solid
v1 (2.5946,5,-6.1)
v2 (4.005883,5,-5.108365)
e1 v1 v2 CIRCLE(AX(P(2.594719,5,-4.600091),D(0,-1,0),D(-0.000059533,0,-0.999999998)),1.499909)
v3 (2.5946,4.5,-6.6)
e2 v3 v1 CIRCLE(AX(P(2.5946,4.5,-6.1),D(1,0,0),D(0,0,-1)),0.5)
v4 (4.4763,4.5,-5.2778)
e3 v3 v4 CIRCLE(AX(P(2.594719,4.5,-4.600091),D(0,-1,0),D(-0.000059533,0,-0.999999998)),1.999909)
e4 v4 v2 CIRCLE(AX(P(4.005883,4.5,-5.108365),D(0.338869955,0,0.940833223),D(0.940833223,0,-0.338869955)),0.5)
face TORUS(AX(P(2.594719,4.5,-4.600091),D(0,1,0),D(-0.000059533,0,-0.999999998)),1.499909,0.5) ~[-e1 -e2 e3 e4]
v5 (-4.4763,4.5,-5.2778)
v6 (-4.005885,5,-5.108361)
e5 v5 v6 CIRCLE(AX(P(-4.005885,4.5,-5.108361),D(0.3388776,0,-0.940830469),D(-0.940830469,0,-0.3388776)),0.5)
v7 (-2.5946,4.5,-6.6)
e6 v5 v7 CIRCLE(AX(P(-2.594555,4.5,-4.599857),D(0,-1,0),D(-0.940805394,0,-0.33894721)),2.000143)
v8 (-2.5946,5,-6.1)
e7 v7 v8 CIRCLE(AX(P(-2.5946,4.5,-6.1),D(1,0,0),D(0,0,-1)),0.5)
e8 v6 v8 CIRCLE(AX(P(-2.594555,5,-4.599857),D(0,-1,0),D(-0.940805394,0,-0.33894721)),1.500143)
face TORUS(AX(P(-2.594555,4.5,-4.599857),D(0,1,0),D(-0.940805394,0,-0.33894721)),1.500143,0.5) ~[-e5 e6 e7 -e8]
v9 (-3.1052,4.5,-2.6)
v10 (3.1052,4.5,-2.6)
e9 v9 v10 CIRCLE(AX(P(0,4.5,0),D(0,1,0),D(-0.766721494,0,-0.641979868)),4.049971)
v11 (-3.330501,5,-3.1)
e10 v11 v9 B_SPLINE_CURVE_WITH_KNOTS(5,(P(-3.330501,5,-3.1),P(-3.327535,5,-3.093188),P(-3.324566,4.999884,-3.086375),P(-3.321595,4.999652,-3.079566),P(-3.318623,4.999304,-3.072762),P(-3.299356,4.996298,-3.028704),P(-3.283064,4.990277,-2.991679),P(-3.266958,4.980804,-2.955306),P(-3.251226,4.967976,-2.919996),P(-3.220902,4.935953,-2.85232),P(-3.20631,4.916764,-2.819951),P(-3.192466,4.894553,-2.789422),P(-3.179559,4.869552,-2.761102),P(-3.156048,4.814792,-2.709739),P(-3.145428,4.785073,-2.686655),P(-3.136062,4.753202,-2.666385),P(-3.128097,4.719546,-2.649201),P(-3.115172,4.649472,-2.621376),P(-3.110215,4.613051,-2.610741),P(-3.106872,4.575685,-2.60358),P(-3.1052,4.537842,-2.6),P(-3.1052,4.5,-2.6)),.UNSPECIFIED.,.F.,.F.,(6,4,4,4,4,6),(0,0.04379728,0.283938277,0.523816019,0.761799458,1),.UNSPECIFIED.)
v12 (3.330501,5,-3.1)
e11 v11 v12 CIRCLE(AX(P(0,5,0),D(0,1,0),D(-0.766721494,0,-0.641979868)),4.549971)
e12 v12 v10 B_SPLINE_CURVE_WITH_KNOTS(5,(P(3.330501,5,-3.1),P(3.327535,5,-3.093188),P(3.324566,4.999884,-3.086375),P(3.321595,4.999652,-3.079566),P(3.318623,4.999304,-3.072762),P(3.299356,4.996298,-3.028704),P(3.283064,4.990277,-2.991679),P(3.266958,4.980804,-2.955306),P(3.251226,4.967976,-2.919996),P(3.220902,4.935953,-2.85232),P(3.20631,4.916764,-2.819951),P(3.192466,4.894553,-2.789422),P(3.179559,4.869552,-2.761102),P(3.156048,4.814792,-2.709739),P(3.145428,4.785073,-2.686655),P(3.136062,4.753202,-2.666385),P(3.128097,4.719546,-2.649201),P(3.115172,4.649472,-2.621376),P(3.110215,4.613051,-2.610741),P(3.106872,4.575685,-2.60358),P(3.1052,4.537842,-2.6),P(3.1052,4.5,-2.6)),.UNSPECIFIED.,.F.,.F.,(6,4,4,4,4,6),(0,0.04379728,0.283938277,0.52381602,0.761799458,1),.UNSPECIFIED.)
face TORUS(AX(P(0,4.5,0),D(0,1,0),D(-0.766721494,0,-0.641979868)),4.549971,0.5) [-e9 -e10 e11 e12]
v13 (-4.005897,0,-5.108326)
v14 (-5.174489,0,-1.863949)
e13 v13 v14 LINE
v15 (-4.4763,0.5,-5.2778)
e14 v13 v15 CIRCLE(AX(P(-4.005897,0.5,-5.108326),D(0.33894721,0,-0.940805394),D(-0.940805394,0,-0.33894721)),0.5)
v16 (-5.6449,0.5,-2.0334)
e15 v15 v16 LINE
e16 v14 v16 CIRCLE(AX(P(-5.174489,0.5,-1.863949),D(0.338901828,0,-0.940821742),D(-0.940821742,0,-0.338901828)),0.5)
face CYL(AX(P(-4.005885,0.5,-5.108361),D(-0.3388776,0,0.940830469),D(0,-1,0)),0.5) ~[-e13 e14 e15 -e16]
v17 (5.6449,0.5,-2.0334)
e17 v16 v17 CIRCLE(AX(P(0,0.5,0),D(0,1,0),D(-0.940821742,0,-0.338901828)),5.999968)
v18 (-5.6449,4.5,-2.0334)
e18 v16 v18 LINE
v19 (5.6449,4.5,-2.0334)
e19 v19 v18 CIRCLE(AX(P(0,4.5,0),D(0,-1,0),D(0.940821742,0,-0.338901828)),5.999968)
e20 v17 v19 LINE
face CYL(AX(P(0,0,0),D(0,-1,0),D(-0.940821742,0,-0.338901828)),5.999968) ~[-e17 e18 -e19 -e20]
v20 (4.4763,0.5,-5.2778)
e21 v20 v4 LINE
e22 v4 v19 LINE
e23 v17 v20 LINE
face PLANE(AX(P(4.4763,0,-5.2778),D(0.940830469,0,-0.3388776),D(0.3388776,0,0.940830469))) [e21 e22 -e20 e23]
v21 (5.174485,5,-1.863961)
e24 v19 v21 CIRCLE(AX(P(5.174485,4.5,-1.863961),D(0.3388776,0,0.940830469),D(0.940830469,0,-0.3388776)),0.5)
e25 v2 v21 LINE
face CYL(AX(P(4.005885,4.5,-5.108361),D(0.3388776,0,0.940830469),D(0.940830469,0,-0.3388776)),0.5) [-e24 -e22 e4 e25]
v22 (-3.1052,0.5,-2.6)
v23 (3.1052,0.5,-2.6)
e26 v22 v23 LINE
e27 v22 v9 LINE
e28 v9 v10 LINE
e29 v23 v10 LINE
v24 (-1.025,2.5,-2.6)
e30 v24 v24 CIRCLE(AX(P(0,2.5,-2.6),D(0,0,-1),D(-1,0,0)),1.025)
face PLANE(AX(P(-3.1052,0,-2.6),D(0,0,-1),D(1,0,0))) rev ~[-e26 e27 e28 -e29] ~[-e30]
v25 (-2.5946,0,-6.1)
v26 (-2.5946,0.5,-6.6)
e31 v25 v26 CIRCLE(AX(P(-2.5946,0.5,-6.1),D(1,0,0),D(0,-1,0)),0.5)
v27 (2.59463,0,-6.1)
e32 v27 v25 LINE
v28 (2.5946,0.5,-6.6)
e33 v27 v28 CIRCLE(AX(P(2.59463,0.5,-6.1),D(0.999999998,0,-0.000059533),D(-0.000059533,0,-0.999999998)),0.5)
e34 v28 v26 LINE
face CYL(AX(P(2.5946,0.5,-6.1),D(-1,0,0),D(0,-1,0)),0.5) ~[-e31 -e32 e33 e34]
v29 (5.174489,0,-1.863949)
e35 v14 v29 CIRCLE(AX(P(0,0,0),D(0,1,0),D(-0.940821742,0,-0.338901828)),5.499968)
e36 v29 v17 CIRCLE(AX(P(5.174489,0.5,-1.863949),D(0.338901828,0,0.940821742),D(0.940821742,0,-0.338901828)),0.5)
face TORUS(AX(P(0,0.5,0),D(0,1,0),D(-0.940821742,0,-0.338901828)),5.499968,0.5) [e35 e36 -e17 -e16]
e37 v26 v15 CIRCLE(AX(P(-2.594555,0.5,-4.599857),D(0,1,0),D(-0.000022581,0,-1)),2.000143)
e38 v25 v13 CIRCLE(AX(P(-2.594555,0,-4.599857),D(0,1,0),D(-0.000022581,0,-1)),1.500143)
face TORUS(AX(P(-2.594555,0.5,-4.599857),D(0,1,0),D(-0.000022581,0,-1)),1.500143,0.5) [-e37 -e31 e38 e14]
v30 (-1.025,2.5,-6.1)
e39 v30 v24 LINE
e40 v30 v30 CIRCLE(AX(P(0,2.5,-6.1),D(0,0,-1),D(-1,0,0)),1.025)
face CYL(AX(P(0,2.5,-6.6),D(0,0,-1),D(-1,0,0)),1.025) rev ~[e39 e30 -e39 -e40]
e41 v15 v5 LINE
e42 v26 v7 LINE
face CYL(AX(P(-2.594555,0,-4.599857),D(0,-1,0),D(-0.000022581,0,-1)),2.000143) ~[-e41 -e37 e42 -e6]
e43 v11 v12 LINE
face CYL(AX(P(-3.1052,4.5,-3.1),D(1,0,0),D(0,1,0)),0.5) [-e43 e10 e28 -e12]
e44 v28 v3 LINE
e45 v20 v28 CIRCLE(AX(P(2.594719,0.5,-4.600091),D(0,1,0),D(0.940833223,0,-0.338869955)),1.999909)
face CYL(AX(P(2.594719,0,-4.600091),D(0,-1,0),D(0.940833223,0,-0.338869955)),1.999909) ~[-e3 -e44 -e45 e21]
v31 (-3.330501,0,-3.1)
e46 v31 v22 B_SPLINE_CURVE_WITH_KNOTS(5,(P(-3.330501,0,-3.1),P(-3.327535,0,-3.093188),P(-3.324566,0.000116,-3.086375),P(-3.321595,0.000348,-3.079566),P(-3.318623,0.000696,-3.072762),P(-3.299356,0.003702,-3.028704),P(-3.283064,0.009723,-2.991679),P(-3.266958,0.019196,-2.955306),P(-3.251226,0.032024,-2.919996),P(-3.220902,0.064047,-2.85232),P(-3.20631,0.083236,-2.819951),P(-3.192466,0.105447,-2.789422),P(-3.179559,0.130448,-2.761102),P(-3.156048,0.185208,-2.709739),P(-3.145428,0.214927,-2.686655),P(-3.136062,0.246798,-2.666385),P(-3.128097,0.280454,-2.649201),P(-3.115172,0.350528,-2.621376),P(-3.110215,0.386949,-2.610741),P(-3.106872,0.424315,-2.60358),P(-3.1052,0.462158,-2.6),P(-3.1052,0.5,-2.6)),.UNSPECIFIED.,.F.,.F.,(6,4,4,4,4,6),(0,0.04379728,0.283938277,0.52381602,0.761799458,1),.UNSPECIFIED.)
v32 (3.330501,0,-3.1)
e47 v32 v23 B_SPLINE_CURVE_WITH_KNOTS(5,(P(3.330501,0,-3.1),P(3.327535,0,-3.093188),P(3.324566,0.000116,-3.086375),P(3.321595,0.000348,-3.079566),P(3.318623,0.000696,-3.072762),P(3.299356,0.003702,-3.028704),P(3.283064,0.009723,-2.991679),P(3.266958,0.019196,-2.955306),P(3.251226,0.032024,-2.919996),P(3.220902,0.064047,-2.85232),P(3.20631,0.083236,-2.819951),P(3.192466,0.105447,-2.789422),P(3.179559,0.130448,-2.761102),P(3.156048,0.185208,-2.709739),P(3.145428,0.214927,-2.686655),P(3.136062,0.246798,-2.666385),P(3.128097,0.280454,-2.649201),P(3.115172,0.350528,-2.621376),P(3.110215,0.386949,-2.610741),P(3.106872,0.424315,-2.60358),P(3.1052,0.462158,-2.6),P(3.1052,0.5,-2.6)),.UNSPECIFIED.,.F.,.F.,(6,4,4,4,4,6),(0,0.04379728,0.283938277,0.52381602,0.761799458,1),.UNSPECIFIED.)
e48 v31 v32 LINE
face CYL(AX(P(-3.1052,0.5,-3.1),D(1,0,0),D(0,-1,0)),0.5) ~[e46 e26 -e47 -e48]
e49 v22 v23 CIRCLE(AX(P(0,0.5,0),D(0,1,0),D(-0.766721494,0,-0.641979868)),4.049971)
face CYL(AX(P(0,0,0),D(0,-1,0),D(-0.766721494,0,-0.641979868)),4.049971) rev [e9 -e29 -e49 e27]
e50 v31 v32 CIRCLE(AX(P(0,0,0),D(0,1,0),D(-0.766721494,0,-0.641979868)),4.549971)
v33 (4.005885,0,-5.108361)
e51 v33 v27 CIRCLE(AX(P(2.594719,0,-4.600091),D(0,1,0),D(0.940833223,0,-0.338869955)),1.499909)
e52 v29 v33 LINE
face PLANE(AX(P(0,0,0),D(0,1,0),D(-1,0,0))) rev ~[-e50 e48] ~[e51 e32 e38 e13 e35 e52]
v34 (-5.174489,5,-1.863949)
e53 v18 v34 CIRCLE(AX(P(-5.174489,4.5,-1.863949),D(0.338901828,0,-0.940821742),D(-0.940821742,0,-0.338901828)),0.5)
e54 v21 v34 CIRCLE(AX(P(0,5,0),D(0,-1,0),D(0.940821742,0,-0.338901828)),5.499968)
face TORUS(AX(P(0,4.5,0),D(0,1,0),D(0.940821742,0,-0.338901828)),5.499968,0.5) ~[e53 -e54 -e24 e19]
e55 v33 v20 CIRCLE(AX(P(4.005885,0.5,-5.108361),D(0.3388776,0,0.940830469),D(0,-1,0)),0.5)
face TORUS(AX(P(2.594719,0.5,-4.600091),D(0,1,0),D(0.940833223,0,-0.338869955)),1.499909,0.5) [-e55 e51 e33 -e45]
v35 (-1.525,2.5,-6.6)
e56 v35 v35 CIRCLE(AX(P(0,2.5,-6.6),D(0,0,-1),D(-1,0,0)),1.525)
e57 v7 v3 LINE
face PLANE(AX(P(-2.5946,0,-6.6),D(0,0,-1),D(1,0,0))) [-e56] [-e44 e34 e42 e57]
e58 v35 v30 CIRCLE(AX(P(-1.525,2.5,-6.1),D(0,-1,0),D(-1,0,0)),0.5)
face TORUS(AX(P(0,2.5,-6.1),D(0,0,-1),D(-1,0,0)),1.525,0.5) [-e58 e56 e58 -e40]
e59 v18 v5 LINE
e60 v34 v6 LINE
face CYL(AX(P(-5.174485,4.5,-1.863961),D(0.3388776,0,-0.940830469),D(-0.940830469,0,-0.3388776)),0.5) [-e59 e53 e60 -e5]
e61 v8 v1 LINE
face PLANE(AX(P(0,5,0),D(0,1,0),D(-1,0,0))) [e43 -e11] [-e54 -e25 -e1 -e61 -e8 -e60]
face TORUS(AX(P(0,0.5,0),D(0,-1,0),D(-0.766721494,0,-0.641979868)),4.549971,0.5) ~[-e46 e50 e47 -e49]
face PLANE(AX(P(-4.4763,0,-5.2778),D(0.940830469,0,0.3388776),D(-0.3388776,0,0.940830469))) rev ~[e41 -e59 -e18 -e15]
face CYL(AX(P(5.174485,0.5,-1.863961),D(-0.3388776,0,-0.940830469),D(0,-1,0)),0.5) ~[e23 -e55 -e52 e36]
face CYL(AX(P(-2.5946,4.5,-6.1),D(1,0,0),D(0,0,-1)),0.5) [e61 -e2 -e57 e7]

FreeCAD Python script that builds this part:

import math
import FreeCAD as App
import Part
import Sketcher
from FreeCAD import Vector


def edges_at(feature, points):
    """Names of the edges that pass closest to the given points."""
    edges = feature.Shape.Edges
    near = lambda p: min(range(len(edges)), key=lambda i: edges[i].distToShape(Part.Vertex(*p))[0])
    return sorted({f"Edge{near(p) + 1}" for p in points})

doc = App.newDocument("Part")
params = doc.addObject("Spreadsheet::Sheet", "Params")
for row, (alias, value) in enumerate([
    ("sketch1_radius", "6 mm"),
    ("sketch1_radius2", "2 mm"),
    ("sketch1_radius3", "4.05 mm"),
    ("pad1_length", "5 mm"),
    ("sketch2_diameter", "2.05 mm"),
    ("pocket1_length", "5 mm"),
    ("fillet_radius", "0.5 mm"),
    ("fillet2_radius", "0.5 mm"),
], start=1):
    params.set(f"A{row}", alias)
    params.set(f"B{row}", "=" + value)
    params.setAlias(f"B{row}", alias)

body = doc.addObject("PartDesign::Body", "Body")

sketch1 = doc.addObject("Sketcher::SketchObject", "Sketch")
body.addObject(sketch1)
sketch1.AttachmentSupport = (doc.XZ_Plane, [""])
sketch1.MapMode = "FlatFace"
sketch1.addGeometry(Part.LineSegment(Vector(-4.4763, -5.2778, 0), Vector(-5.6449, -2.0334, 0)), False)
sketch1.addGeometry(Part.ArcOfCircle(Part.Circle(Vector(0, 0, 0), Vector(0, 0, 1), 5.999968), math.radians(-19.809982), math.radians(199.809982)), False)
sketch1.addGeometry(Part.LineSegment(Vector(5.6449, -2.0334, 0), Vector(4.4763, -5.2778, 0)), False)
sketch1.addGeometry(Part.ArcOfCircle(Part.Circle(Vector(2.5946, -4.6, 0), Vector(0, 0, 1), 2.000052), math.radians(-90), math.radians(-19.809334)), False)
sketch1.addGeometry(Part.LineSegment(Vector(2.5946, -6.6, 0), Vector(-2.5946, -6.6, 0)), False)
sketch1.addGeometry(Part.ArcOfCircle(Part.Circle(Vector(-2.5946, -4.6, 0), Vector(0, 0, 1), 2), math.radians(-160.190666), math.radians(-90)), False)
sketch1.addGeometry(Part.ArcOfCircle(Part.Circle(Vector(0, 0, 0), Vector(0, 0, 1), 4.049971), math.radians(-39.939612), math.radians(219.939612)), False)
sketch1.addGeometry(Part.LineSegment(Vector(-3.1052, -2.6, 0), Vector(3.1052, -2.6, 0)), False)
sketch1.addConstraint(Sketcher.Constraint("Tangent", 0, 2, 1, 2))
sketch1.addConstraint(Sketcher.Constraint("Tangent", 1, 1, 2, 1))
sketch1.addConstraint(Sketcher.Constraint("Tangent", 2, 2, 3, 2))
sketch1.addConstraint(Sketcher.Constraint("Tangent", 3, 1, 4, 1))
sketch1.addConstraint(Sketcher.Constraint("Tangent", 4, 2, 5, 2))
sketch1.addConstraint(Sketcher.Constraint("Tangent", 5, 1, 0, 1))
sketch1.addConstraint(Sketcher.Constraint("Coincident", 6, 1, 7, 2))
sketch1.addConstraint(Sketcher.Constraint("Coincident", 7, 1, 6, 2))
sketch1.addConstraint(Sketcher.Constraint("Horizontal", 4))
sketch1.addConstraint(Sketcher.Constraint("Horizontal", 7))
sketch1.addConstraint(Sketcher.Constraint("Coincident", 1, 3, -1, 1))
sketch1.addConstraint(Sketcher.Constraint("Coincident", 6, 3, -1, 1))
sketch1.addConstraint(Sketcher.Constraint("Equal", 3, 5))
sketch1.addConstraint(Sketcher.Constraint("Horizontal", 0, 2, 1, 1))
sketch1.addConstraint(Sketcher.Constraint("Radius", 1, 6.0))
sketch1.addConstraint(Sketcher.Constraint("Radius", 3, 2.0))
sketch1.addConstraint(Sketcher.Constraint("Radius", 6, 4.05))
sketch1.addConstraint(Sketcher.Constraint("DistanceY", 3, 3, 6, 1, 2.0))
sketch1.addConstraint(Sketcher.Constraint("DistanceY", 6, 1, -1, 1, 2.6))
sketch1.addConstraint(Sketcher.Constraint("DistanceX", 4, 2, 4, 1, 5.1892))
sketch1.setExpression("Constraints[14]", "Params.sketch1_radius")
sketch1.setExpression("Constraints[15]", "Params.sketch1_radius2")
sketch1.setExpression("Constraints[16]", "Params.sketch1_radius3")
pad1 = doc.addObject("PartDesign::Pad", "Pad")
body.addObject(pad1)
pad1.Profile = sketch1
pad1.setExpression("Length", "Params.pad1_length")
pad1.Reversed = True

sketch2 = doc.addObject("Sketcher::SketchObject", "Sketch001")
body.addObject(sketch2)
sketch2.AttachmentSupport = (doc.XY_Plane, [""])
sketch2.MapMode = "FlatFace"
sketch2.AttachmentOffset = App.Placement(Vector(0, 0, -6.6), App.Rotation())
sketch2.addGeometry(Part.Circle(Vector(0, 2.5, 0), Vector(0, 0, 1), 1.025), False)
sketch2.addConstraint(Sketcher.Constraint("PointOnObject", 0, 3, -2))
sketch2.addConstraint(Sketcher.Constraint("Diameter", 0, 2.05))
sketch2.addConstraint(Sketcher.Constraint("DistanceY", -1, 1, 0, 3, 2.5))
sketch2.setExpression("Constraints[1]", "Params.sketch2_diameter")
pocket1 = doc.addObject("PartDesign::Pocket", "Pocket")
body.addObject(pocket1)
pocket1.Profile = sketch2
pocket1.setExpression("Length", "Params.pocket1_length")
pocket1.Reversed = True
doc.recompute()

fillet = doc.addObject("PartDesign::Fillet", "Fillet")
body.addObject(fillet)
fillet.Base = (pocket1, edges_at(pocket1, [(1.025, 2.5, -6.6)]))
fillet.setExpression("Radius", "Params.fillet_radius")
doc.recompute()

fillet2 = doc.addObject("PartDesign::Fillet", "Fillet001")
body.addObject(fillet2)
fillet2.Base = (fillet, edges_at(fillet, [
    (0, 5, 4.05),
    (0, 0, 4.05),
    (0, 0, -2.6),
    (0, 5, -2.6),
    (0, 0, 6),
    (5.061, 0, -3.656),
    (3.744, 0, -6.236),
    (0, 0, -6.6),
    (-3.744, 0, -6.236),
    (-5.061, 0, -3.656),
    (0, 5, -6.6),
    (-3.744, 5, -6.236),
    (-5.061, 5, -3.656),
    (0, 5, 6),
    (5.061, 5, -3.656),
    (3.744, 5, -6.236),
]))
fillet2.setExpression("Radius", "Params.fillet2_radius")

doc.recompute()
